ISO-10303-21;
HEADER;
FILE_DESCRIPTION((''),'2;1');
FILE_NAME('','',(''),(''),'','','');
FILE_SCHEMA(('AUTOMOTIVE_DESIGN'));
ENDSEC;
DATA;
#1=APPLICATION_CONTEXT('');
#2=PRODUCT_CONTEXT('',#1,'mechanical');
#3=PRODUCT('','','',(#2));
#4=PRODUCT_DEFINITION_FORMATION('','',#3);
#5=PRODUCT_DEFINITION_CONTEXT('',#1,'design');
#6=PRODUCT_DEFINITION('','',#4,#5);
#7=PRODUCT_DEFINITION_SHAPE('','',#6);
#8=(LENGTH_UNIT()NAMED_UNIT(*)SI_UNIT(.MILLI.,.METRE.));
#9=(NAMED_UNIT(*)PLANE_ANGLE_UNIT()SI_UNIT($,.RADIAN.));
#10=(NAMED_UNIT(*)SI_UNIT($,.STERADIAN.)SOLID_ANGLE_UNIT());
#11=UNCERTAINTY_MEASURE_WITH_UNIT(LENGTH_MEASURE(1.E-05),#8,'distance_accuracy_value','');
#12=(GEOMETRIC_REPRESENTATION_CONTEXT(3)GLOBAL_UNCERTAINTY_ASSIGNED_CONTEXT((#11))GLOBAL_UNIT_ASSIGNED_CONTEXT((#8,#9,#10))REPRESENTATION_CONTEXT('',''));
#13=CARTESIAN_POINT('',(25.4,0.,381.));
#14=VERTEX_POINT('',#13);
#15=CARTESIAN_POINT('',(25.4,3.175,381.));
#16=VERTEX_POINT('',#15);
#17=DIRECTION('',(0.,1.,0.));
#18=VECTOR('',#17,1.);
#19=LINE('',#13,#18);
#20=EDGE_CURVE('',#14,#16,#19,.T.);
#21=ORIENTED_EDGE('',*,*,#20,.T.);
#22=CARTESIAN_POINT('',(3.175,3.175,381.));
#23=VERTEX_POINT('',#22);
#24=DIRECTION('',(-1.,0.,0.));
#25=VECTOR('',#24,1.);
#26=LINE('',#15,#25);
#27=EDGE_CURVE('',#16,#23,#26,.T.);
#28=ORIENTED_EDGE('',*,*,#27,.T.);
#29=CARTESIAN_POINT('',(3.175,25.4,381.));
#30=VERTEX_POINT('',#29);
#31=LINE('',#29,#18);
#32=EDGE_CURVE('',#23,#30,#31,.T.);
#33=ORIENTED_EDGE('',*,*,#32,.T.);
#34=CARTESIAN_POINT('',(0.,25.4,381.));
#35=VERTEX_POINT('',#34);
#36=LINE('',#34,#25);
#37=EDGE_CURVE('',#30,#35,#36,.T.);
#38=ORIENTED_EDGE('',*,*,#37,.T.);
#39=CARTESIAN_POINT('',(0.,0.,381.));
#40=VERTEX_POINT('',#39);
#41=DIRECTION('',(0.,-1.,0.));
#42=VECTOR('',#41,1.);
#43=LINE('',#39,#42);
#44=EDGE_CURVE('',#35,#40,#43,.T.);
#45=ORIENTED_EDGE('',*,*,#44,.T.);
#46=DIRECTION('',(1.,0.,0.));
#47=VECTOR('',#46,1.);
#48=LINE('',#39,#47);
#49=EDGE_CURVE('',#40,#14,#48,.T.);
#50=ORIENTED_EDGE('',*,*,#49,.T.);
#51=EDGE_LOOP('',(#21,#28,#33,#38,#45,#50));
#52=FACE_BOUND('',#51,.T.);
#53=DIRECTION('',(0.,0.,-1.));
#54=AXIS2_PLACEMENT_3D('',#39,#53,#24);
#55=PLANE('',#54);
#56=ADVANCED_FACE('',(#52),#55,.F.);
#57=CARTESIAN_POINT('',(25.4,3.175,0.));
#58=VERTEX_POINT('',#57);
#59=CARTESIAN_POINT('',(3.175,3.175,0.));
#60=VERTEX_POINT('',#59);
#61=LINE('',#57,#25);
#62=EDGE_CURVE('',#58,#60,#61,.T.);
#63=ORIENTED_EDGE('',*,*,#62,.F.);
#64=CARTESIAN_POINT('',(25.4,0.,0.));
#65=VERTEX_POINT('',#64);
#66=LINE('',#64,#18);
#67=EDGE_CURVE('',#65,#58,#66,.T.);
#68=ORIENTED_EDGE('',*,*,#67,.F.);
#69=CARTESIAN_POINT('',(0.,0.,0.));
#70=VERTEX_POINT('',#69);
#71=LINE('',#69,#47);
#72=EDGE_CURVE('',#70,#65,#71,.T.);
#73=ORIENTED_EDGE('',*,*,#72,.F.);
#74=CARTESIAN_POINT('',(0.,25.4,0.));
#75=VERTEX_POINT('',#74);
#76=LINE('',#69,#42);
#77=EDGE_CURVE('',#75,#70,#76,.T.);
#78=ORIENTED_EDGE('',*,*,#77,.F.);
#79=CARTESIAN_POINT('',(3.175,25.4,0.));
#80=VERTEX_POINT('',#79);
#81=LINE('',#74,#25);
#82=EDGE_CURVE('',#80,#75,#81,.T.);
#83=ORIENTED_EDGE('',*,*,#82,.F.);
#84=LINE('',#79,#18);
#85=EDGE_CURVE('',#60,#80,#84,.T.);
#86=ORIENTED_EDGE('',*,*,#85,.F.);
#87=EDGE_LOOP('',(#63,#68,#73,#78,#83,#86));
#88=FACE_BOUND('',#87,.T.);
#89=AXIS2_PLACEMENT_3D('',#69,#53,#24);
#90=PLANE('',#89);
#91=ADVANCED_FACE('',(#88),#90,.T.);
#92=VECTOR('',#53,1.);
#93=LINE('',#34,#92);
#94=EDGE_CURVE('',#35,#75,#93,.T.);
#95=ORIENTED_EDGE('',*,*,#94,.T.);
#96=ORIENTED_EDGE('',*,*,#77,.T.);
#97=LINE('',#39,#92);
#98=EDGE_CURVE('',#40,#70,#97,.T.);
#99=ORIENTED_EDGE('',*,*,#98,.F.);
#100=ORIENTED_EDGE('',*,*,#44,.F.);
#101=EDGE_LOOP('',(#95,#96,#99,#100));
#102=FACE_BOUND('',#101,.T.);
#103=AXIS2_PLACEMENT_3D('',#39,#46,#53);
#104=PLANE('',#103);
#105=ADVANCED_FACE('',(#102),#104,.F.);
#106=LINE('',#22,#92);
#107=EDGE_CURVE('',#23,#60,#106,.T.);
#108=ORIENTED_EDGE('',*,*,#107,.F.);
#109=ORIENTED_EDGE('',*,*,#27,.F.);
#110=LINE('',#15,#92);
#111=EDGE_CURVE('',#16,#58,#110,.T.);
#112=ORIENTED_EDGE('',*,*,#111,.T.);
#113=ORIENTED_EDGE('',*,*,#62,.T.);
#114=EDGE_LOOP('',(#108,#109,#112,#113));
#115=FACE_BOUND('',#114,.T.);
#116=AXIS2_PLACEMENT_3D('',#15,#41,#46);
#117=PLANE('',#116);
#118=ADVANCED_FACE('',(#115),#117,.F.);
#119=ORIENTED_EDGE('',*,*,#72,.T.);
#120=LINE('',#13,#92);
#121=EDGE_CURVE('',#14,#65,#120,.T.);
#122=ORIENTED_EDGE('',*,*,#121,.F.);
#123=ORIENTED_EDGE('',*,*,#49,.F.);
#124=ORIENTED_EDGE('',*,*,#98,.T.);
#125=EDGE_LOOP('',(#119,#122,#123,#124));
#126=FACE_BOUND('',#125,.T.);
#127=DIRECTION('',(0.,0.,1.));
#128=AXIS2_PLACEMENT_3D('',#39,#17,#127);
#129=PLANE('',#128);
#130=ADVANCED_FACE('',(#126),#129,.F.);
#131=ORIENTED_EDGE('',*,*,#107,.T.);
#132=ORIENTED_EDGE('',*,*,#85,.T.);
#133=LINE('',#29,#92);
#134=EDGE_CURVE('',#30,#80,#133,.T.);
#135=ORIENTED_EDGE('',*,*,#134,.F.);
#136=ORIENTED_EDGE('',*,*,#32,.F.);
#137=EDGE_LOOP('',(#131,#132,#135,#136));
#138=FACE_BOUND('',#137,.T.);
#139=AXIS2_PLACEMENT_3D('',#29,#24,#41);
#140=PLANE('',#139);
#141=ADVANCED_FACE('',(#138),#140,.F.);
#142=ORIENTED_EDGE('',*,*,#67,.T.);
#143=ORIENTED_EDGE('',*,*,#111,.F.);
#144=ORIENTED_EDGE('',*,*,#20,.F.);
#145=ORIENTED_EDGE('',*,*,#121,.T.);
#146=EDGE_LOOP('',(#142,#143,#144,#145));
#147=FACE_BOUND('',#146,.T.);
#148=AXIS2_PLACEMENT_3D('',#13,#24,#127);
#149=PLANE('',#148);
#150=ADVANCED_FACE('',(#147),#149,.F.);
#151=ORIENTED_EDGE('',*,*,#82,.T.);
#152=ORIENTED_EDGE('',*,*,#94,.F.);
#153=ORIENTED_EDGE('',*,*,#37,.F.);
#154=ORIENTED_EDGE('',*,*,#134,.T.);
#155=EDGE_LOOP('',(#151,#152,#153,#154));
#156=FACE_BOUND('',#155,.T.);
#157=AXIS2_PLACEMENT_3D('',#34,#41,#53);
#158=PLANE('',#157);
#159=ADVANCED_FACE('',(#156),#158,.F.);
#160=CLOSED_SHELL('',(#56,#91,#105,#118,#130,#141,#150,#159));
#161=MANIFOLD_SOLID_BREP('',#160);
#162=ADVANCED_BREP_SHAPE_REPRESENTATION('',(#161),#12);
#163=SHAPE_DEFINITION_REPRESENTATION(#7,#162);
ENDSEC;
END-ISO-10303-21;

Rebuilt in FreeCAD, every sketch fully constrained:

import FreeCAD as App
import Part
import Sketcher

V = App.Vector
Q = App.Units.Quantity

doc = App.newDocument("Part")
body = doc.addObject("PartDesign::Body", "Body")

sketch1 = doc.addObject("Sketcher::SketchObject", "Sketch")
body.addObject(sketch1)
sketch1.AttachmentSupport = (doc.XY_Plane, [""])
sketch1.MapMode = "FlatFace"
sketch1.addGeometry(Part.LineSegment(V(0, 0, 0), V(25.4, 0, 0)), False)
sketch1.addGeometry(Part.LineSegment(V(25.4, 0, 0), V(25.4, 3.2, 0)), False)
sketch1.addGeometry(Part.LineSegment(V(25.4, 3.2, 0), V(3.2, 3.2, 0)), False)
sketch1.addGeometry(Part.LineSegment(V(3.2, 3.2, 0), V(3.2, 25.4, 0)), False)
sketch1.addGeometry(Part.LineSegment(V(3.2, 25.4, 0), V(0, 25.4, 0)), False)
sketch1.addGeometry(Part.LineSegment(V(0, 25.4, 0), V(0, 0, 0)), False)
sketch1.addConstraint(Sketcher.Constraint("Coincident", 0, 2, 1, 1))
sketch1.addConstraint(Sketcher.Constraint("Coincident", 1, 2, 2, 1))
sketch1.addConstraint(Sketcher.Constraint("Coincident", 2, 2, 3, 1))
sketch1.addConstraint(Sketcher.Constraint("Coincident", 3, 2, 4, 1))
sketch1.addConstraint(Sketcher.Constraint("Coincident", 4, 2, 5, 1))
sketch1.addConstraint(Sketcher.Constraint("Coincident", 5, 2, 0, 1))
sketch1.addConstraint(Sketcher.Constraint("Horizontal", 0))
sketch1.addConstraint(Sketcher.Constraint("Vertical", 1))
sketch1.addConstraint(Sketcher.Constraint("Horizontal", 2))
sketch1.addConstraint(Sketcher.Constraint("Vertical", 3))
sketch1.addConstraint(Sketcher.Constraint("Horizontal", 4))
sketch1.addConstraint(Sketcher.Constraint("Vertical", 5))
sketch1.addConstraint(Sketcher.Constraint("Coincident", 5, 2, -1, 1))
sketch1.addConstraint(Sketcher.Constraint("Equal", 4, 1))
sketch1.addConstraint(Sketcher.Constraint("Equal", 2, 3))
sketch1.addConstraint(Sketcher.Constraint("DistanceX", 0, 1, 0, 2, Q("1 in")))
sketch1.addConstraint(Sketcher.Constraint("DistanceX", 2, 2, 2, 1, Q("0.875 in")))
pad1 = doc.addObject("PartDesign::Pad", "Pad")
body.addObject(pad1)
pad1.Profile = sketch1
pad1.Length = Q("15 in")

doc.recompute()
